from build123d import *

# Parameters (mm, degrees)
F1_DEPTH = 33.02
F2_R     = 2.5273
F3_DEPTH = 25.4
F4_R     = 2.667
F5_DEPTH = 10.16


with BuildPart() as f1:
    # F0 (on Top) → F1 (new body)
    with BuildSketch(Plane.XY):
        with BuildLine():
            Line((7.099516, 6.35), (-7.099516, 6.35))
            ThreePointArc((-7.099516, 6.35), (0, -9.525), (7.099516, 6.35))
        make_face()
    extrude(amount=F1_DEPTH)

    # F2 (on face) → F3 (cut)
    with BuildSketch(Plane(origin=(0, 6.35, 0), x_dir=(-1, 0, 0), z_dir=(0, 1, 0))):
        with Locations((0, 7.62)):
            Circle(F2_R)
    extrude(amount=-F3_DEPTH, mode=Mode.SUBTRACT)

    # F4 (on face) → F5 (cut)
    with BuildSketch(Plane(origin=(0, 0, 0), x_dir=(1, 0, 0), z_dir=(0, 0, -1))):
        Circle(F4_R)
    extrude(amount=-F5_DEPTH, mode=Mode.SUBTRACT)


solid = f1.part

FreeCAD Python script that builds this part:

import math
import FreeCAD as App
import Part
import Sketcher
from FreeCAD import Vector
Q = App.Units.Quantity

doc = App.newDocument("Part")
body = doc.addObject("PartDesign::Body", "Body")

# Sketch on XY plane
sketch1 = doc.addObject("Sketcher::SketchObject", "Sketch")
body.addObject(sketch1)
sketch1.AttachmentSupport = (doc.XY_Plane, [""])
sketch1.MapMode = "FlatFace"
sketch1.addGeometry([
    Part.LineSegment(Vector(7.099516, 6.35, 0), Vector(-7.099516, 6.35, 0)),
    Part.ArcOfCircle(Part.Circle(Vector(0, 0, 0), Vector(0, 0, 1), 9.525), math.radians(138.189686), math.radians(401.810314)),
], False)
sketch1.addConstraint([
    Sketcher.Constraint("Coincident", 0, 1, 1, 2),
    Sketcher.Constraint("Coincident", 1, 1, 0, 2),
    Sketcher.Constraint("Horizontal", 0),
    Sketcher.Constraint("Coincident", 1, 3, -1, 1),
    Sketcher.Constraint("Radius", 1, Q("0.375 in")),
    Sketcher.Constraint("DistanceY", -1, 1, 0, 1, Q("0.25 in")),
])
pad1 = doc.addObject("PartDesign::Pad", "Pad")
body.addObject(pad1)
pad1.Profile = sketch1
pad1.Length = Q("1.3 in")

# Sketch on XZ plane
sketch2 = doc.addObject("Sketcher::SketchObject", "Sketch001")
body.addObject(sketch2)
sketch2.AttachmentSupport = (doc.XZ_Plane, [""])
sketch2.MapMode = "FlatFace"
sketch2.AttachmentOffset = App.Placement(Vector(0, 0, -0.25 * 25.4), App.Rotation())
sketch2.addGeometry(Part.Circle(Vector(0, 7.62, 0), Vector(0, 0, 1), 2.5273), False)
sketch2.addConstraint([
    Sketcher.Constraint("PointOnObject", 0, 3, -2),
    Sketcher.Constraint("Diameter", 0, Q("0.199 in")),
    Sketcher.Constraint("DistanceY", -1, 1, 0, 3, Q("0.3 in")),
])
pocket1 = doc.addObject("PartDesign::Pocket", "Pocket")
body.addObject(pocket1)
pocket1.Profile = sketch2
pocket1.Length = Q("1 in")
pocket1.Reversed = True

# Sketch on XY plane
sketch3 = doc.addObject("Sketcher::SketchObject", "Sketch002")
body.addObject(sketch3)
sketch3.AttachmentSupport = (doc.XY_Plane, [""])
sketch3.MapMode = "FlatFace"
sketch3.addGeometry(Part.Circle(Vector(0, 0, 0), Vector(0, 0, 1), 2.667), False)
sketch3.addConstraint([
    Sketcher.Constraint("Coincident", 0, 3, -1, 1),
    Sketcher.Constraint("Diameter", 0, Q("0.21 in")),
])
pocket2 = doc.addObject("PartDesign::Pocket", "Pocket001")
body.addObject(pocket2)
pocket2.Profile = sketch3
pocket2.Length = Q("0.4 in")
pocket2.Reversed = True

doc.recompute()
